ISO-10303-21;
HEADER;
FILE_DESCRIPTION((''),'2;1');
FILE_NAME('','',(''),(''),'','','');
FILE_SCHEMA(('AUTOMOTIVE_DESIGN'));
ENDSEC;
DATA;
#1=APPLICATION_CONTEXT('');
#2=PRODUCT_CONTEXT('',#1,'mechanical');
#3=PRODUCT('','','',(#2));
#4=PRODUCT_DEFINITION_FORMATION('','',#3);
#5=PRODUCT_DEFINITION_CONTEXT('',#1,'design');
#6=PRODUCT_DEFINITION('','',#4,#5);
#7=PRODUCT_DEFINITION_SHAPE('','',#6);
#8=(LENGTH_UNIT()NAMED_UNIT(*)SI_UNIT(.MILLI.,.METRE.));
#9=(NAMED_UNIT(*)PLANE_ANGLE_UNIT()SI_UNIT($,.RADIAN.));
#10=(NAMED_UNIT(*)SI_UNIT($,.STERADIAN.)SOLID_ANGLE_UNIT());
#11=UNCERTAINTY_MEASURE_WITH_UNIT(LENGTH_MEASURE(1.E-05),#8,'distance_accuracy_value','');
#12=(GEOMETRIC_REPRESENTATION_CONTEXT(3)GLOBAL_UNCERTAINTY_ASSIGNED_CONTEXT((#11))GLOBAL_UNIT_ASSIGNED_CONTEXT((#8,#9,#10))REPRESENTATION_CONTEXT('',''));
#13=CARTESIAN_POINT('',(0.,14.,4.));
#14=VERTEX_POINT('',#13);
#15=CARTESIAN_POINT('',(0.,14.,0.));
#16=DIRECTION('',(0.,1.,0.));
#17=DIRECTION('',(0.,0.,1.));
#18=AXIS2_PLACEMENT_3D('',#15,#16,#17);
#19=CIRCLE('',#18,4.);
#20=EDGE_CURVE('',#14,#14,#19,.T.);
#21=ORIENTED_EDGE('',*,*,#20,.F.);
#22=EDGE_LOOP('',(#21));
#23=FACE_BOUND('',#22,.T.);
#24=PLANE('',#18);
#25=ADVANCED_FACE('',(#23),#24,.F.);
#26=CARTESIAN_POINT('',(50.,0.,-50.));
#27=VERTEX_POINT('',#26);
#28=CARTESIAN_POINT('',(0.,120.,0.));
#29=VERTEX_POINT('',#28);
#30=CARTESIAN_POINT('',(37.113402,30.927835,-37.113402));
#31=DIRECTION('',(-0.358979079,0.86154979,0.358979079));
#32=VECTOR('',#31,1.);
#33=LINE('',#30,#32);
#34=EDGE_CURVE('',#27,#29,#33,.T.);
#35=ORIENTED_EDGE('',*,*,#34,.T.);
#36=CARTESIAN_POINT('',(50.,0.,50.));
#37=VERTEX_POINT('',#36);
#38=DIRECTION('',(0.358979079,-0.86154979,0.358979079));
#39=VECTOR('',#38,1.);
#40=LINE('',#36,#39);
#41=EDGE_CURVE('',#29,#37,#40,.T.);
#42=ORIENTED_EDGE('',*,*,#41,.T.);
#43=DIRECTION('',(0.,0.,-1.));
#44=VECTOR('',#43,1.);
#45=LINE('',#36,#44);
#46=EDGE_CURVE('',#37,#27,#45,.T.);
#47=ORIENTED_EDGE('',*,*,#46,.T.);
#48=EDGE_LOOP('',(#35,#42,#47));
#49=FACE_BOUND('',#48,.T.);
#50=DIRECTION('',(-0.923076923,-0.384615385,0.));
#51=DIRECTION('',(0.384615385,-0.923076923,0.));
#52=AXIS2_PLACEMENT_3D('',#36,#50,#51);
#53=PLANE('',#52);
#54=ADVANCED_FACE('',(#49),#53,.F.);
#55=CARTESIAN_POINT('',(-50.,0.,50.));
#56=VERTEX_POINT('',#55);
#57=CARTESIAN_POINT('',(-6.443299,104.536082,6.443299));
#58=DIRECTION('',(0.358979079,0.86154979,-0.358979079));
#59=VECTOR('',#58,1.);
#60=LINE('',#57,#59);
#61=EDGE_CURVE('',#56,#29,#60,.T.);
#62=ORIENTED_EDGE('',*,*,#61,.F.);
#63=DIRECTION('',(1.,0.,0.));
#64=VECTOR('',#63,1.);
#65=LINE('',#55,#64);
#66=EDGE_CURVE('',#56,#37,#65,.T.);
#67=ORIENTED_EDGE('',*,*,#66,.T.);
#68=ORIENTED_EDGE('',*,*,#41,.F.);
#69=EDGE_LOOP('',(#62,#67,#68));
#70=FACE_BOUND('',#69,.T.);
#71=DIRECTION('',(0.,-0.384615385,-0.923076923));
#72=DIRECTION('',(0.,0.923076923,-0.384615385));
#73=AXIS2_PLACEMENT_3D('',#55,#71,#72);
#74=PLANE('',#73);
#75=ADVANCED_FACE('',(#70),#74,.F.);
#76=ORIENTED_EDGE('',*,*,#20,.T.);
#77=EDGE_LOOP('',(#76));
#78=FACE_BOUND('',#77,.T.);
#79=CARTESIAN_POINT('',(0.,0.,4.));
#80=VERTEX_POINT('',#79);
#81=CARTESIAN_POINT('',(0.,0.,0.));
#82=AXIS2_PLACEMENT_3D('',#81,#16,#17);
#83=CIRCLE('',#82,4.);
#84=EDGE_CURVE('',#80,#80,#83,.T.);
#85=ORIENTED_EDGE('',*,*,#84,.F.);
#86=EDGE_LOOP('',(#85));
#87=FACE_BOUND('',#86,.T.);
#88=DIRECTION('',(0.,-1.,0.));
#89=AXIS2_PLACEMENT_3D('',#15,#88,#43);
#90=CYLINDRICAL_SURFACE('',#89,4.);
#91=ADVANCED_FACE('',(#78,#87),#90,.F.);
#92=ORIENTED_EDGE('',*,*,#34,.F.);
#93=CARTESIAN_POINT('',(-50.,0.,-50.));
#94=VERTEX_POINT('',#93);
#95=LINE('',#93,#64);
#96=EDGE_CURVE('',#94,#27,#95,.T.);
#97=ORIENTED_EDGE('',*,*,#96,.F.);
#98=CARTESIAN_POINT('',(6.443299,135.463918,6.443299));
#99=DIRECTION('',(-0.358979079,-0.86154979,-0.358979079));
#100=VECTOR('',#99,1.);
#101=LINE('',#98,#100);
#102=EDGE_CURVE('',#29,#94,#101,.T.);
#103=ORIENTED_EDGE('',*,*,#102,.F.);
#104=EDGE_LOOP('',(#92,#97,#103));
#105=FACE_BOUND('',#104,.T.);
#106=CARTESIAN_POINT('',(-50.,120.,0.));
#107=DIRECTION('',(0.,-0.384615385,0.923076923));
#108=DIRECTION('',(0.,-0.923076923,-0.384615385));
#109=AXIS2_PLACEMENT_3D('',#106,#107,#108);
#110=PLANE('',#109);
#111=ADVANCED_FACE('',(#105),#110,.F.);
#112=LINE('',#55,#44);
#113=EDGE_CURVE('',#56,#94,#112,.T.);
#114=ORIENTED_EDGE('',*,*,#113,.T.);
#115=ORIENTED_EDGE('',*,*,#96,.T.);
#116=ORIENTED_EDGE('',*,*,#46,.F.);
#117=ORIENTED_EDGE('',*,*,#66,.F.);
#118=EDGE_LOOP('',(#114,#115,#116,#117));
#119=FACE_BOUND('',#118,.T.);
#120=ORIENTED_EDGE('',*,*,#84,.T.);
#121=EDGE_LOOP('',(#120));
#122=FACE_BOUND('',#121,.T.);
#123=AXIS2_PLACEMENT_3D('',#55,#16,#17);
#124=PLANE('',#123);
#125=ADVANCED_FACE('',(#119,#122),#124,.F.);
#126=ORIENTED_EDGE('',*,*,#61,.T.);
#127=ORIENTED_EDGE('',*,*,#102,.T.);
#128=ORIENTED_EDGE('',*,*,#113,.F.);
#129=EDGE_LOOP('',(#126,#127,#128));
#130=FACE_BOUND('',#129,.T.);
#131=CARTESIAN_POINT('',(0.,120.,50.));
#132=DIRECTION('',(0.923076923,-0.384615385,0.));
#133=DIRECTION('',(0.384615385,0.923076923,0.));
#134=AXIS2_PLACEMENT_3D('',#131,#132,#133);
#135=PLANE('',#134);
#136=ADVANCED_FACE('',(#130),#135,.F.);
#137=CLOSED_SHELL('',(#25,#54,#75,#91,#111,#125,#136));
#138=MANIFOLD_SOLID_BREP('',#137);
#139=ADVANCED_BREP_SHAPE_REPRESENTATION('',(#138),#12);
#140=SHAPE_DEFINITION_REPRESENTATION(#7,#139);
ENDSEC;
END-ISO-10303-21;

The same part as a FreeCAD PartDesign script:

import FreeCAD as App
import Part
import Sketcher
from FreeCAD import Vector
Q = App.Units.Quantity

doc = App.newDocument("Part")
body = doc.addObject("PartDesign::Body", "Body")

sketch1 = body.newObject("Sketcher::SketchObject", "Sketch")
sketch1.AttachmentSupport = (doc.getObject("XY_Plane"), [""])
sketch1.MapMode = "FlatFace"
sketch1.addGeometry(Part.LineSegment(Vector(-50, 0, 0), Vector(50, 0, 0)), False)
sketch1.addGeometry(Part.LineSegment(Vector(50, 0, 0), Vector(0, 120, 0)), False)
sketch1.addGeometry(Part.LineSegment(Vector(0, 120, 0), Vector(-50, 0, 0)), False)
sketch1.addConstraint(Sketcher.Constraint("Coincident", 0, 2, 1, 1))
sketch1.addConstraint(Sketcher.Constraint("Coincident", 1, 2, 2, 1))
sketch1.addConstraint(Sketcher.Constraint("Coincident", 2, 2, 0, 1))
sketch1.addConstraint(Sketcher.Constraint("Horizontal", 0))
sketch1.addConstraint(Sketcher.Constraint("Symmetric", 0, 2, 2, 2, -1, 1))
sketch1.addConstraint(Sketcher.Constraint("PointOnObject", 1, 2, -2))
sketch1.addConstraint(Sketcher.Constraint("DistanceX", 0, 1, 0, 2, Q("100 mm")))
sketch1.addConstraint(Sketcher.Constraint("Distance", 1, Q("130 mm")))
pad1 = body.newObject("PartDesign::Pad", "Pad")
pad1.Profile = sketch1
pad1.Length = 100
pad1.Midplane = True

sketch2 = body.newObject("Sketcher::SketchObject", "Sketch001")
sketch2.AttachmentSupport = (doc.getObject("YZ_Plane"), [""])
sketch2.MapMode = "FlatFace"
sketch2.addGeometry(Part.LineSegment(Vector(0, 60, 0), Vector(0, 50, 0)), False)
sketch2.addGeometry(Part.LineSegment(Vector(0, 50, 0), Vector(120, 0, 0)), False)
sketch2.addGeometry(Part.LineSegment(Vector(120, 0, 0), Vector(0, -50, 0)), False)
sketch2.addGeometry(Part.LineSegment(Vector(0, -50, 0), Vector(0, -60, 0)), False)
sketch2.addGeometry(Part.LineSegment(Vector(0, -60, 0), Vector(130, -60, 0)), False)
sketch2.addGeometry(Part.LineSegment(Vector(130, -60, 0), Vector(130, 60, 0)), False)
sketch2.addGeometry(Part.LineSegment(Vector(130, 60, 0), Vector(0, 60, 0)), False)
sketch2.addConstraint(Sketcher.Constraint("Coincident", 0, 2, 1, 1))
sketch2.addConstraint(Sketcher.Constraint("Coincident", 1, 2, 2, 1))
sketch2.addConstraint(Sketcher.Constraint("Coincident", 2, 2, 3, 1))
sketch2.addConstraint(Sketcher.Constraint("Coincident", 3, 2, 4, 1))
sketch2.addConstraint(Sketcher.Constraint("Coincident", 4, 2, 5, 1))
sketch2.addConstraint(Sketcher.Constraint("Coincident", 5, 2, 6, 1))
sketch2.addConstraint(Sketcher.Constraint("Coincident", 6, 2, 0, 1))
sketch2.addConstraint(Sketcher.Constraint("Vertical", 0))
sketch2.addConstraint(Sketcher.Constraint("Vertical", 3))
sketch2.addConstraint(Sketcher.Constraint("Horizontal", 4))
sketch2.addConstraint(Sketcher.Constraint("Vertical", 5))
sketch2.addConstraint(Sketcher.Constraint("Horizontal", 6))
sketch2.addConstraint(Sketcher.Constraint("Symmetric", 0, 2, 2, 2, -1, 1))
sketch2.addConstraint(Sketcher.Constraint("Symmetric", 3, 2, 6, 2, -1))
sketch2.addConstraint(Sketcher.Constraint("PointOnObject", 1, 2, -1))
sketch2.addConstraint(Sketcher.Constraint("DistanceX", 4, 1, 4, 2, Q("130 mm")))
sketch2.addConstraint(Sketcher.Constraint("DistanceY", 0, 2, 0, 1, Q("10 mm")))
sketch2.addConstraint(Sketcher.Constraint("DistanceY", 5, 1, 5, 2, Q("120 mm")))
sketch2.addConstraint(Sketcher.Constraint("Distance", 1, Q("130 mm")))
pocket1 = body.newObject("PartDesign::Pocket", "Pocket")
pocket1.Profile = sketch2
pocket1.Type = "ThroughAll"
pocket1.Midplane = True

sketch3 = body.newObject("Sketcher::SketchObject", "Sketch002")
sketch3.AttachmentSupport = (doc.getObject("XZ_Plane"), [""])
sketch3.MapMode = "FlatFace"
sketch3.addGeometry(Part.Circle(Vector(0, 0, 0), Vector(0, 0, 1), 4), False)
sketch3.addConstraint(Sketcher.Constraint("Coincident", 0, 3, -1, 1))
sketch3.addConstraint(Sketcher.Constraint("Diameter", 0, Q("8 mm")))
pocket2 = body.newObject("PartDesign::Pocket", "Pocket001")
pocket2.Profile = sketch3
pocket2.Length = 14

doc.recompute()
